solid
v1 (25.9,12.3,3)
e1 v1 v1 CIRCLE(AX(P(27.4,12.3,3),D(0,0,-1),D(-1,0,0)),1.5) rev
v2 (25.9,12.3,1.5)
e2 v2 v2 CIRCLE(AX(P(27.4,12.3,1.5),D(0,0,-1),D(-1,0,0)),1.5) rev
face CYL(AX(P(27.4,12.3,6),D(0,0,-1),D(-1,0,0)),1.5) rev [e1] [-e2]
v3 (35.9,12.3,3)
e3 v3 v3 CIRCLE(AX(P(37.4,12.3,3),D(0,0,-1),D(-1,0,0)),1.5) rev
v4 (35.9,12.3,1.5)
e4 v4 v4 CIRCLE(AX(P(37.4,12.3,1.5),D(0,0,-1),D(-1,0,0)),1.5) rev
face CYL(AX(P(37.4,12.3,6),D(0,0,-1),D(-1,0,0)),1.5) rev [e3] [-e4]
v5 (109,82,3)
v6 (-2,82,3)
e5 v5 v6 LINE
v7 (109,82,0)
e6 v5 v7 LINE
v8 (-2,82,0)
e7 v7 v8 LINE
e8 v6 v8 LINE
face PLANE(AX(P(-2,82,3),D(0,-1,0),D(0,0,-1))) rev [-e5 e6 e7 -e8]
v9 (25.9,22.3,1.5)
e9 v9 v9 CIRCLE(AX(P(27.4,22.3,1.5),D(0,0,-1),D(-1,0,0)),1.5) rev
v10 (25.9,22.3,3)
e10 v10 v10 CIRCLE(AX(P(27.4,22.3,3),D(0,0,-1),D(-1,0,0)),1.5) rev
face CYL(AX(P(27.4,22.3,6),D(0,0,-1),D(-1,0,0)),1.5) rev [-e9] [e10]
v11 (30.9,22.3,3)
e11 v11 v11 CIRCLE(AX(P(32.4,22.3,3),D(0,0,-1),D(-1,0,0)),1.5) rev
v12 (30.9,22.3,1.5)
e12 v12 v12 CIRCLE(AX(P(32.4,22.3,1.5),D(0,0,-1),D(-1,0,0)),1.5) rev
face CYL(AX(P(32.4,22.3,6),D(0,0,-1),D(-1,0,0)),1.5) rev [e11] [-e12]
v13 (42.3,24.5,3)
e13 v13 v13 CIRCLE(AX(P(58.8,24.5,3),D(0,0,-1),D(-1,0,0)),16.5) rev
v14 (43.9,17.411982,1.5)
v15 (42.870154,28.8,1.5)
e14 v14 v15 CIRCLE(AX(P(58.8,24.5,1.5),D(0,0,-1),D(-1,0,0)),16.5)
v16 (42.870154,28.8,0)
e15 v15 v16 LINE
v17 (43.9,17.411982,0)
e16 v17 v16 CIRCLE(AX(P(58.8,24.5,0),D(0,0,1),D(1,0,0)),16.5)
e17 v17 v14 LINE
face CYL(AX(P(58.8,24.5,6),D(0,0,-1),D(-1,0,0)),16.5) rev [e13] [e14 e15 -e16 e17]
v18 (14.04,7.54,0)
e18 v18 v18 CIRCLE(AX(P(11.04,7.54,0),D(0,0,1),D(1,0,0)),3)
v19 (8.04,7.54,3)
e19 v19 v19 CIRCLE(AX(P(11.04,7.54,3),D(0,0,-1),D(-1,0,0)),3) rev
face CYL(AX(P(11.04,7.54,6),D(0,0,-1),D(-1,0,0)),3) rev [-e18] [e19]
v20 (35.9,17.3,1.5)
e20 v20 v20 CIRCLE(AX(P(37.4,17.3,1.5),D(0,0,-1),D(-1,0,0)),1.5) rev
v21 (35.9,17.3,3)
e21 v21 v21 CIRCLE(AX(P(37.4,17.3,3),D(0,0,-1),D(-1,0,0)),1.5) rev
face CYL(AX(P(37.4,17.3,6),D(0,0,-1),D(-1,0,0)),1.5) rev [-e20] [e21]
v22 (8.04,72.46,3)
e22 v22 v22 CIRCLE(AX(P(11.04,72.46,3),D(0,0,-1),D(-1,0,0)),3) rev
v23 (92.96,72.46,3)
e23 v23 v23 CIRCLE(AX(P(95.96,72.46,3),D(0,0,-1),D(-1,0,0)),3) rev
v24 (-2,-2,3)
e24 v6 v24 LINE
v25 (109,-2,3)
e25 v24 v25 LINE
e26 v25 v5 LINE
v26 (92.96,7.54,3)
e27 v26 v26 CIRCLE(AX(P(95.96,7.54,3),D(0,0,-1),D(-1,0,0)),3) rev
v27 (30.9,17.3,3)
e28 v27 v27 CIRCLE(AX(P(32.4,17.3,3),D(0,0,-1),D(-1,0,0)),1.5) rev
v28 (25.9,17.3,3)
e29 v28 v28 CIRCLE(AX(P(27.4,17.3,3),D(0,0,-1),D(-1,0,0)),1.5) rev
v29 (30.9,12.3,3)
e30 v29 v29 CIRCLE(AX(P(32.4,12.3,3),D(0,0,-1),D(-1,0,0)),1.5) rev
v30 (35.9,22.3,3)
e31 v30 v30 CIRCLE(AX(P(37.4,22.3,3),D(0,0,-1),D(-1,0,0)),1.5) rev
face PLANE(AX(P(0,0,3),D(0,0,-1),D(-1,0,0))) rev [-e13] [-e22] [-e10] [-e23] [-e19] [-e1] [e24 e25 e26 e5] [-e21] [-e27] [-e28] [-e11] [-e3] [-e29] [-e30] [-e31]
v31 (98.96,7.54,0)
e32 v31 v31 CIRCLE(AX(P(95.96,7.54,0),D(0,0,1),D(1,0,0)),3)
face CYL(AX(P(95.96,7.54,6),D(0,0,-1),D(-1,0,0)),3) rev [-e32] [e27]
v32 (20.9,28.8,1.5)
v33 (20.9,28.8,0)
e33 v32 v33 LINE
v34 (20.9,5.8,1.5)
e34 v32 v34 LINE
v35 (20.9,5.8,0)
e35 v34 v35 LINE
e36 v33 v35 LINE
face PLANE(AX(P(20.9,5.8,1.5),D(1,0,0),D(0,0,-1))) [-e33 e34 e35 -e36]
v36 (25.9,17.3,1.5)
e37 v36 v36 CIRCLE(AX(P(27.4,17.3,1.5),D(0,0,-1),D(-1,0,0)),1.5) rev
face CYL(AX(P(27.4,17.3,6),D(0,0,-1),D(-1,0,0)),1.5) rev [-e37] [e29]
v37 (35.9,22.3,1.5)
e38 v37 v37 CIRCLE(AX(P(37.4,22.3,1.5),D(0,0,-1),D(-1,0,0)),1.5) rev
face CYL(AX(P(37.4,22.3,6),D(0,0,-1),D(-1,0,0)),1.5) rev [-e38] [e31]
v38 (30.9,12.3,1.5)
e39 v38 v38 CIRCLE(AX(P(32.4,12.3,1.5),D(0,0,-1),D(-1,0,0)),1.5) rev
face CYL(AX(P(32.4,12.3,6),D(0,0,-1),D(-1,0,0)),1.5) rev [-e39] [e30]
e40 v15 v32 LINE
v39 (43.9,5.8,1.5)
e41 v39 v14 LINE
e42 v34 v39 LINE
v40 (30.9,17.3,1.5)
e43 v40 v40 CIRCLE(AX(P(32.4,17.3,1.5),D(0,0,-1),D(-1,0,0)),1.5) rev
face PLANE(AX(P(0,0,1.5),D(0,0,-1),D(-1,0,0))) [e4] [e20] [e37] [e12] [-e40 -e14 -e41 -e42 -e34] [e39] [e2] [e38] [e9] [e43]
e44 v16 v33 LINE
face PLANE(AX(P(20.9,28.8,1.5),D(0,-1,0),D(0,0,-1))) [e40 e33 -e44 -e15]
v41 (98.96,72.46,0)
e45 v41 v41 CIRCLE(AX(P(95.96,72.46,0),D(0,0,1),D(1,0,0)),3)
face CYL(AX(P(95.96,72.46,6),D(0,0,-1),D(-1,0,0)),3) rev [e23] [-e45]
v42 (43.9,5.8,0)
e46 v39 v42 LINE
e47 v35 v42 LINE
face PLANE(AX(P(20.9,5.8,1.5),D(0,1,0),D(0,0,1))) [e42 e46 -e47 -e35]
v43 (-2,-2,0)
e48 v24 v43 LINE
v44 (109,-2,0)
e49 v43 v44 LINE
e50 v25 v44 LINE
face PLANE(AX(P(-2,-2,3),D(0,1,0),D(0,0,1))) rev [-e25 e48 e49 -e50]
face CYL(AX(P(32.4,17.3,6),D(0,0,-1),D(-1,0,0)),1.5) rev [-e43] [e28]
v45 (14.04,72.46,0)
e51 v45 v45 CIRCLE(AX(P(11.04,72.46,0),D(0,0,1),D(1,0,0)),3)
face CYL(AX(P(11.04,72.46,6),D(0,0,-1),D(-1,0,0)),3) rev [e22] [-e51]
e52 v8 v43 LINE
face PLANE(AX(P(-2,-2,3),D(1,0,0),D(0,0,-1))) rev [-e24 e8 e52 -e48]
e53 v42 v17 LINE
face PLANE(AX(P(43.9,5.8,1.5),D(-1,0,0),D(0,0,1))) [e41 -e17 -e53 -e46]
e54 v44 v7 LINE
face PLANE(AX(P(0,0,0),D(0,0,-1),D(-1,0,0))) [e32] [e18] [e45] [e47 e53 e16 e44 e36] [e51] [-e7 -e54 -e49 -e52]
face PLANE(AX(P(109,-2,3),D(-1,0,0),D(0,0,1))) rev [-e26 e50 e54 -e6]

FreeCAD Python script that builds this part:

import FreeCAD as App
import Part
import Sketcher
Q = App.Units.Quantity


def add_polygon(sketch, points):
    """Adds a closed chain of lines whose ends are joined by coincident constraints."""
    first, n = sketch.GeometryCount, len(points)
    for a, b in zip(points, points[1:] + points[:1]):
        sketch.addGeometry(Part.LineSegment(App.Vector(*a, 0), App.Vector(*b, 0)), False)
    for i in range(n):
        sketch.addConstraint(Sketcher.Constraint("Coincident", first + i, 2, first + (i + 1) % n, 1))

doc = App.newDocument("Part")
params = doc.addObject("Spreadsheet::Sheet", "Params")
for row, (alias, value) in enumerate([
    ("sketch1_width", "111 mm"),
    ("sketch1_height", "84 mm"),
    ("pad1_length", "3 mm"),
    ("sketch2_diameter", "6 mm"),
    ("pocket1_length", "3 mm"),
    ("sketch3_diameter", "33 mm"),
    ("pocket2_length", "3 mm"),
    ("sketch4_width", "23 mm"),
    ("pocket3_length", "1.5 mm"),
    ("sketch5_diameter", "3 mm"),
    ("pocket4_length", "1.5 mm"),
], start=1):
    params.set(f"A{row}", alias)
    params.set(f"B{row}", "=" + value)
    params.setAlias(f"B{row}", alias)

body = doc.addObject("PartDesign::Body", "Body")

# Sketch on XY plane
sketch1 = doc.addObject("Sketcher::SketchObject", "Sketch")
body.addObject(sketch1)
sketch1.AttachmentSupport = (doc.XY_Plane, [""])
sketch1.MapMode = "FlatFace"
add_polygon(sketch1, [(-2, 82), (-2, -2), (109, -2), (109, 82)])  # lines 0-3
sketch1.addConstraint([
    Sketcher.Constraint("Vertical", 0),
    Sketcher.Constraint("Horizontal", 1),
    Sketcher.Constraint("Vertical", 2),
    Sketcher.Constraint("Horizontal", 3),
    Sketcher.Constraint("DistanceX", 1, 1, 1, 2, Q("111 mm")),
    Sketcher.Constraint("DistanceY", 0, 2, 0, 1, Q("84 mm")),
    Sketcher.Constraint("DistanceX", 0, 2, -1, 1, Q("2 mm")),
    Sketcher.Constraint("DistanceY", 0, 2, -1, 1, Q("2 mm")),
])
sketch1.setExpression("Constraints[8]", "Params.sketch1_width")
sketch1.setExpression("Constraints[9]", "Params.sketch1_height")
pad1 = doc.addObject("PartDesign::Pad", "Pad")
body.addObject(pad1)
pad1.Profile = sketch1
pad1.setExpression("Length", "Params.pad1_length")

# Sketch on XY plane
sketch2 = doc.addObject("Sketcher::SketchObject", "Sketch001")
body.addObject(sketch2)
sketch2.AttachmentSupport = (doc.XY_Plane, [""])
sketch2.MapMode = "FlatFace"
sketch2.addGeometry([
    Part.Circle(App.Vector(11, 7.5, 0), App.Vector(0, 0, 1), 3),
    Part.Circle(App.Vector(96, 7.5, 0), App.Vector(0, 0, 1), 3),
    Part.Circle(App.Vector(11, 72.5, 0), App.Vector(0, 0, 1), 3),
    Part.Circle(App.Vector(96, 72.5, 0), App.Vector(0, 0, 1), 3),
], False)
sketch2.addConstraint([
    Sketcher.Constraint("Equal", 0, 1),
    Sketcher.Constraint("Equal", 1, 2),
    Sketcher.Constraint("Equal", 2, 3),
    Sketcher.Constraint("Horizontal", 0, 3, 1, 3),
    Sketcher.Constraint("Horizontal", 2, 3, 3, 3),
    Sketcher.Constraint("Vertical", 0, 3, 2, 3),
    Sketcher.Constraint("Vertical", 1, 3, 3, 3),
    Sketcher.Constraint("Diameter", 0, Q("6 mm")),
    Sketcher.Constraint("DistanceX", -1, 1, 0, 3, Q("11.04 mm")),
    Sketcher.Constraint("DistanceY", -1, 1, 0, 3, Q("7.54 mm")),
    Sketcher.Constraint("DistanceX", -1, 1, 1, 3, Q("95.96 mm")),
    Sketcher.Constraint("DistanceY", -1, 1, 2, 3, Q("72.46 mm")),
])
sketch2.setExpression("Constraints[7]", "Params.sketch2_diameter")
pocket1 = doc.addObject("PartDesign::Pocket", "Pocket")
body.addObject(pocket1)
pocket1.Profile = sketch2
pocket1.setExpression("Length", "Params.pocket1_length")
pocket1.Reversed = True

# Sketch on XY plane
sketch3 = doc.addObject("Sketcher::SketchObject", "Sketch002")
body.addObject(sketch3)
sketch3.AttachmentSupport = (doc.XY_Plane, [""])
sketch3.MapMode = "FlatFace"
sketch3.addGeometry(Part.Circle(App.Vector(59, 24, 0), App.Vector(0, 0, 1), 16), False)
sketch3.addConstraint([
    Sketcher.Constraint("Diameter", 0, Q("33 mm")),
    Sketcher.Constraint("DistanceX", -1, 1, 0, 3, Q("58.8 mm")),
    Sketcher.Constraint("DistanceY", -1, 1, 0, 3, Q("24.5 mm")),
])
sketch3.setExpression("Constraints[0]", "Params.sketch3_diameter")
pocket2 = doc.addObject("PartDesign::Pocket", "Pocket001")
body.addObject(pocket2)
pocket2.Profile = sketch3
pocket2.setExpression("Length", "Params.pocket2_length")
pocket2.Reversed = True

# Sketch on XY plane
sketch4 = doc.addObject("Sketcher::SketchObject", "Sketch003")
body.addObject(sketch4)
sketch4.AttachmentSupport = (doc.XY_Plane, [""])
sketch4.MapMode = "FlatFace"
add_polygon(sketch4, [(21, 29), (21, 6), (44, 6), (44, 29)])  # lines 0-3
sketch4.addConstraint([
    Sketcher.Constraint("Vertical", 0),
    Sketcher.Constraint("Horizontal", 1),
    Sketcher.Constraint("Vertical", 2),
    Sketcher.Constraint("Horizontal", 3),
    Sketcher.Constraint("Equal", 3, 0),
    Sketcher.Constraint("DistanceX", 1, 1, 1, 2, Q("23 mm")),
    Sketcher.Constraint("DistanceX", -1, 1, 0, 2, Q("20.9 mm")),
    Sketcher.Constraint("DistanceY", -1, 1, 0, 2, Q("5.8 mm")),
])
sketch4.setExpression("Constraints[9]", "Params.sketch4_width")
pocket3 = doc.addObject("PartDesign::Pocket", "Pocket002")
body.addObject(pocket3)
pocket3.Profile = sketch4
pocket3.setExpression("Length", "Params.pocket3_length")
pocket3.Reversed = True

# Sketch on XY plane
sketch5 = doc.addObject("Sketcher::SketchObject", "Sketch004")
body.addObject(sketch5)
sketch5.AttachmentSupport = (doc.XY_Plane, [""])
sketch5.MapMode = "FlatFace"
sketch5.AttachmentOffset = App.Placement(App.Vector(0, 0, 1.5), App.Rotation())
sketch5.addGeometry([
    Part.Circle(App.Vector(27.4, 12.3, 0), App.Vector(0, 0, 1), 1.5),  # 0
    Part.Circle(App.Vector(27.4, 17.3, 0), App.Vector(0, 0, 1), 1.5),  # 1
    Part.Circle(App.Vector(27.4, 22.3, 0), App.Vector(0, 0, 1), 1.5),  # 2
    Part.Circle(App.Vector(32.4, 12.3, 0), App.Vector(0, 0, 1), 1.5),  # 3
    Part.Circle(App.Vector(32.4, 17.3, 0), App.Vector(0, 0, 1), 1.5),  # 4
    Part.Circle(App.Vector(32.4, 22.3, 0), App.Vector(0, 0, 1), 1.5),  # 5
    Part.Circle(App.Vector(37.4, 12.3, 0), App.Vector(0, 0, 1), 1.5),  # 6
    Part.Circle(App.Vector(37.4, 17.3, 0), App.Vector(0, 0, 1), 1.5),  # 7
    Part.Circle(App.Vector(37.4, 22.3, 0), App.Vector(0, 0, 1), 1.5),  # 8
], False)
sketch5.addConstraint([
    Sketcher.Constraint("Equal", 0, 1),
    Sketcher.Constraint("Equal", 1, 2),
    Sketcher.Constraint("Equal", 2, 3),
    Sketcher.Constraint("Equal", 3, 4),
    Sketcher.Constraint("Equal", 4, 5),
    Sketcher.Constraint("Equal", 5, 6),
    Sketcher.Constraint("Equal", 6, 7),
    Sketcher.Constraint("Equal", 7, 8),
    Sketcher.Constraint("Horizontal", 0, 3, 3, 3),
    Sketcher.Constraint("Horizontal", 1, 3, 4, 3),
    Sketcher.Constraint("Horizontal", 2, 3, 5, 3),
    Sketcher.Constraint("Horizontal", 3, 3, 6, 3),
    Sketcher.Constraint("Horizontal", 4, 3, 7, 3),
    Sketcher.Constraint("Horizontal", 5, 3, 8, 3),
    Sketcher.Constraint("Vertical", 0, 3, 1, 3),
    Sketcher.Constraint("Vertical", 1, 3, 2, 3),
    Sketcher.Constraint("Vertical", 3, 3, 4, 3),
    Sketcher.Constraint("Vertical", 4, 3, 5, 3),
    Sketcher.Constraint("Vertical", 6, 3, 7, 3),
    Sketcher.Constraint("Vertical", 7, 3, 8, 3),
    Sketcher.Constraint("Diameter", 0, Q("3 mm")),
    Sketcher.Constraint("DistanceY", 0, 3, 1, 3, Q("5 mm")),
    Sketcher.Constraint("DistanceY", 1, 3, 2, 3, Q("5 mm")),
    Sketcher.Constraint("DistanceX", 0, 3, 3, 3, Q("5 mm")),
    Sketcher.Constraint("DistanceX", 3, 3, 6, 3, Q("5 mm")),
    Sketcher.Constraint("DistanceX", -1, 1, 0, 3, Q("27.4 mm")),
    Sketcher.Constraint("DistanceY", -1, 1, 0, 3, Q("12.3 mm")),
])
sketch5.setExpression("Constraints[20]", "Params.sketch5_diameter")
pocket4 = doc.addObject("PartDesign::Pocket", "Pocket003")
body.addObject(pocket4)
pocket4.Profile = sketch5
pocket4.setExpression("Length", "Params.pocket4_length")
pocket4.Reversed = True

doc.recompute()
